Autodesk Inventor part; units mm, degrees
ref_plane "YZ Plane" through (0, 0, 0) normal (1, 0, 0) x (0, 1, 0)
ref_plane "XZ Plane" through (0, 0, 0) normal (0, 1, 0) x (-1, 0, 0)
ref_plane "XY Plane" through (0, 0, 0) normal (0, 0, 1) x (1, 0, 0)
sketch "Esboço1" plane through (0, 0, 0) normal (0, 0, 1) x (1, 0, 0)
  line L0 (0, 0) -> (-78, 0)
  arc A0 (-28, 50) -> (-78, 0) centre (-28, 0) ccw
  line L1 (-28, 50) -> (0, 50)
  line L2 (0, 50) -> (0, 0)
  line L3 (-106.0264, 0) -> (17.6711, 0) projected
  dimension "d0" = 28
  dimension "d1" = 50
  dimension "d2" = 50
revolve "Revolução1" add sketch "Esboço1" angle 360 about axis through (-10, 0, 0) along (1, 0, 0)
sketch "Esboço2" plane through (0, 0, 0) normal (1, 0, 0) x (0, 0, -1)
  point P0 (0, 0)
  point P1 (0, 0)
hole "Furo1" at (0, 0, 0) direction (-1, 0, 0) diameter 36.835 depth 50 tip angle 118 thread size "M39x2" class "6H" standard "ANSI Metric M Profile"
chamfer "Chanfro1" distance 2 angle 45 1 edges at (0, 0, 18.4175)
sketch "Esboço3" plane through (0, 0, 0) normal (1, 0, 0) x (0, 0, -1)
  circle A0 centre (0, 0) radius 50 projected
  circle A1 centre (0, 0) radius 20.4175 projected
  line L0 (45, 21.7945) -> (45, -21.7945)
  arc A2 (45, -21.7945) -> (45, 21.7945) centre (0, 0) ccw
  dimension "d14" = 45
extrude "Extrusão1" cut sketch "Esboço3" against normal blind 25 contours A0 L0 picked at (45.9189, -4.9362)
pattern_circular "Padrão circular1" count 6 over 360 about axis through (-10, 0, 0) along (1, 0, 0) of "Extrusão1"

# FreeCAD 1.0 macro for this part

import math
import FreeCAD as App
import Part
import Sketcher


def edges_at(feature, points):
    """Names of the edges that pass closest to the given points."""
    edges = feature.Shape.Edges
    near = lambda p: min(range(len(edges)), key=lambda i: edges[i].distToShape(Part.Vertex(*p))[0])
    return sorted({f"Edge{near(p) + 1}" for p in points})

doc = App.newDocument("Part")
body = doc.addObject("PartDesign::Body", "Body")

# Sketch on XY plane
sketch1 = doc.addObject("Sketcher::SketchObject", "Sketch")
body.addObject(sketch1)
sketch1.AttachmentSupport = (doc.XY_Plane, [""])
sketch1.MapMode = "FlatFace"
sketch1.addGeometry([
    Part.LineSegment(App.Vector(-78, 0, 0), App.Vector(0, 0, 0)),
    Part.LineSegment(App.Vector(0, 0, 0), App.Vector(0, 50, 0)),
    Part.LineSegment(App.Vector(0, 50, 0), App.Vector(-28, 50, 0)),
    Part.ArcOfCircle(Part.Circle(App.Vector(-28, 0, 0), App.Vector(0, 0, 1), 50), math.radians(90), math.radians(180)),
], False)
sketch1.addConstraint([
    Sketcher.Constraint("Coincident", 0, 2, 1, 1),
    Sketcher.Constraint("Coincident", 1, 2, 2, 1),
    Sketcher.Constraint("Tangent", 2, 2, 3, 1),
    Sketcher.Constraint("Coincident", 3, 2, 0, 1),
    Sketcher.Constraint("Horizontal", 0),
    Sketcher.Constraint("Vertical", 1),
    Sketcher.Constraint("Horizontal", 2),
    Sketcher.Constraint("Coincident", 0, 2, -1, 1),
    Sketcher.Constraint("PointOnObject", 3, 3, -1),
    Sketcher.Constraint("Radius", 3, 50.0),
    Sketcher.Constraint("DistanceX", 2, 2, 2, 1, 28.0),
])
revolution = doc.addObject("PartDesign::Revolution", "Revolution")
body.addObject(revolution)
revolution.Profile = sketch1
revolution.ReferenceAxis = (sketch1, ["H_Axis"])
revolution.Angle = 360

# Sketch on YZ plane
sketch2 = doc.addObject("Sketcher::SketchObject", "Sketch001")
body.addObject(sketch2)
sketch2.AttachmentSupport = (doc.YZ_Plane, [""])
sketch2.MapMode = "FlatFace"
sketch2.addGeometry(Part.Circle(App.Vector(0, 0, 0), App.Vector(0, 0, 1), 18.4175), False)
sketch2.addConstraint([
    Sketcher.Constraint("Coincident", 0, 3, -1, 1),
    Sketcher.Constraint("Diameter", 0, 36.835),
])
doc.recompute()
hole = doc.addObject("PartDesign::Hole", "Hole")
body.addObject(hole)
hole.Profile = sketch2
hole.ThreadType = "None"
hole.Diameter = 36.835
hole.DepthType = "Dimension"
hole.Depth = 50
hole.DrillPoint = "Angled"
hole.DrillPointAngle = 118
doc.recompute()

chamfer = doc.addObject("PartDesign::Chamfer", "Chamfer")
body.addObject(chamfer)
chamfer.Base = (hole, edges_at(hole, [(0, 0, 18.418)]))
chamfer.Size = 2

# Sketch on YZ plane
sketch3 = doc.addObject("Sketcher::SketchObject", "Sketch002")
body.addObject(sketch3)
sketch3.AttachmentSupport = (doc.YZ_Plane, [""])
sketch3.MapMode = "FlatFace"
sketch3.addGeometry([
    Part.ArcOfCircle(Part.Circle(App.Vector(0, 0, 0), App.Vector(0, 0, 1), 50), math.radians(-115.841938), math.radians(-64.158062)),
    Part.LineSegment(App.Vector(-21.7945, -45, 0), App.Vector(21.7945, -45, 0)),
], False)
sketch3.addConstraint([
    Sketcher.Constraint("Coincident", 0, 1, 1, 1),
    Sketcher.Constraint("Coincident", 1, 2, 0, 2),
    Sketcher.Constraint("Horizontal", 1),
    Sketcher.Constraint("Coincident", 0, 3, -1, 1),
    Sketcher.Constraint("DistanceY", 0, 1, -1, 1, 45.0),
    Sketcher.Constraint("Radius", 0, 50.0),
])
pocket1 = doc.addObject("PartDesign::Pocket", "Pocket")
body.addObject(pocket1)
pocket1.Profile = sketch3
pocket1.Length = 25
doc.recompute()

polarpattern = doc.addObject("PartDesign::PolarPattern", "PolarPattern")
body.addObject(polarpattern)
polarpattern.Originals = [pocket1]
polarpattern.Axis = (doc.X_Axis, [""])
polarpattern.Angle = 360
polarpattern.Occurrences = 6
body.Tip = polarpattern

doc.recompute()
